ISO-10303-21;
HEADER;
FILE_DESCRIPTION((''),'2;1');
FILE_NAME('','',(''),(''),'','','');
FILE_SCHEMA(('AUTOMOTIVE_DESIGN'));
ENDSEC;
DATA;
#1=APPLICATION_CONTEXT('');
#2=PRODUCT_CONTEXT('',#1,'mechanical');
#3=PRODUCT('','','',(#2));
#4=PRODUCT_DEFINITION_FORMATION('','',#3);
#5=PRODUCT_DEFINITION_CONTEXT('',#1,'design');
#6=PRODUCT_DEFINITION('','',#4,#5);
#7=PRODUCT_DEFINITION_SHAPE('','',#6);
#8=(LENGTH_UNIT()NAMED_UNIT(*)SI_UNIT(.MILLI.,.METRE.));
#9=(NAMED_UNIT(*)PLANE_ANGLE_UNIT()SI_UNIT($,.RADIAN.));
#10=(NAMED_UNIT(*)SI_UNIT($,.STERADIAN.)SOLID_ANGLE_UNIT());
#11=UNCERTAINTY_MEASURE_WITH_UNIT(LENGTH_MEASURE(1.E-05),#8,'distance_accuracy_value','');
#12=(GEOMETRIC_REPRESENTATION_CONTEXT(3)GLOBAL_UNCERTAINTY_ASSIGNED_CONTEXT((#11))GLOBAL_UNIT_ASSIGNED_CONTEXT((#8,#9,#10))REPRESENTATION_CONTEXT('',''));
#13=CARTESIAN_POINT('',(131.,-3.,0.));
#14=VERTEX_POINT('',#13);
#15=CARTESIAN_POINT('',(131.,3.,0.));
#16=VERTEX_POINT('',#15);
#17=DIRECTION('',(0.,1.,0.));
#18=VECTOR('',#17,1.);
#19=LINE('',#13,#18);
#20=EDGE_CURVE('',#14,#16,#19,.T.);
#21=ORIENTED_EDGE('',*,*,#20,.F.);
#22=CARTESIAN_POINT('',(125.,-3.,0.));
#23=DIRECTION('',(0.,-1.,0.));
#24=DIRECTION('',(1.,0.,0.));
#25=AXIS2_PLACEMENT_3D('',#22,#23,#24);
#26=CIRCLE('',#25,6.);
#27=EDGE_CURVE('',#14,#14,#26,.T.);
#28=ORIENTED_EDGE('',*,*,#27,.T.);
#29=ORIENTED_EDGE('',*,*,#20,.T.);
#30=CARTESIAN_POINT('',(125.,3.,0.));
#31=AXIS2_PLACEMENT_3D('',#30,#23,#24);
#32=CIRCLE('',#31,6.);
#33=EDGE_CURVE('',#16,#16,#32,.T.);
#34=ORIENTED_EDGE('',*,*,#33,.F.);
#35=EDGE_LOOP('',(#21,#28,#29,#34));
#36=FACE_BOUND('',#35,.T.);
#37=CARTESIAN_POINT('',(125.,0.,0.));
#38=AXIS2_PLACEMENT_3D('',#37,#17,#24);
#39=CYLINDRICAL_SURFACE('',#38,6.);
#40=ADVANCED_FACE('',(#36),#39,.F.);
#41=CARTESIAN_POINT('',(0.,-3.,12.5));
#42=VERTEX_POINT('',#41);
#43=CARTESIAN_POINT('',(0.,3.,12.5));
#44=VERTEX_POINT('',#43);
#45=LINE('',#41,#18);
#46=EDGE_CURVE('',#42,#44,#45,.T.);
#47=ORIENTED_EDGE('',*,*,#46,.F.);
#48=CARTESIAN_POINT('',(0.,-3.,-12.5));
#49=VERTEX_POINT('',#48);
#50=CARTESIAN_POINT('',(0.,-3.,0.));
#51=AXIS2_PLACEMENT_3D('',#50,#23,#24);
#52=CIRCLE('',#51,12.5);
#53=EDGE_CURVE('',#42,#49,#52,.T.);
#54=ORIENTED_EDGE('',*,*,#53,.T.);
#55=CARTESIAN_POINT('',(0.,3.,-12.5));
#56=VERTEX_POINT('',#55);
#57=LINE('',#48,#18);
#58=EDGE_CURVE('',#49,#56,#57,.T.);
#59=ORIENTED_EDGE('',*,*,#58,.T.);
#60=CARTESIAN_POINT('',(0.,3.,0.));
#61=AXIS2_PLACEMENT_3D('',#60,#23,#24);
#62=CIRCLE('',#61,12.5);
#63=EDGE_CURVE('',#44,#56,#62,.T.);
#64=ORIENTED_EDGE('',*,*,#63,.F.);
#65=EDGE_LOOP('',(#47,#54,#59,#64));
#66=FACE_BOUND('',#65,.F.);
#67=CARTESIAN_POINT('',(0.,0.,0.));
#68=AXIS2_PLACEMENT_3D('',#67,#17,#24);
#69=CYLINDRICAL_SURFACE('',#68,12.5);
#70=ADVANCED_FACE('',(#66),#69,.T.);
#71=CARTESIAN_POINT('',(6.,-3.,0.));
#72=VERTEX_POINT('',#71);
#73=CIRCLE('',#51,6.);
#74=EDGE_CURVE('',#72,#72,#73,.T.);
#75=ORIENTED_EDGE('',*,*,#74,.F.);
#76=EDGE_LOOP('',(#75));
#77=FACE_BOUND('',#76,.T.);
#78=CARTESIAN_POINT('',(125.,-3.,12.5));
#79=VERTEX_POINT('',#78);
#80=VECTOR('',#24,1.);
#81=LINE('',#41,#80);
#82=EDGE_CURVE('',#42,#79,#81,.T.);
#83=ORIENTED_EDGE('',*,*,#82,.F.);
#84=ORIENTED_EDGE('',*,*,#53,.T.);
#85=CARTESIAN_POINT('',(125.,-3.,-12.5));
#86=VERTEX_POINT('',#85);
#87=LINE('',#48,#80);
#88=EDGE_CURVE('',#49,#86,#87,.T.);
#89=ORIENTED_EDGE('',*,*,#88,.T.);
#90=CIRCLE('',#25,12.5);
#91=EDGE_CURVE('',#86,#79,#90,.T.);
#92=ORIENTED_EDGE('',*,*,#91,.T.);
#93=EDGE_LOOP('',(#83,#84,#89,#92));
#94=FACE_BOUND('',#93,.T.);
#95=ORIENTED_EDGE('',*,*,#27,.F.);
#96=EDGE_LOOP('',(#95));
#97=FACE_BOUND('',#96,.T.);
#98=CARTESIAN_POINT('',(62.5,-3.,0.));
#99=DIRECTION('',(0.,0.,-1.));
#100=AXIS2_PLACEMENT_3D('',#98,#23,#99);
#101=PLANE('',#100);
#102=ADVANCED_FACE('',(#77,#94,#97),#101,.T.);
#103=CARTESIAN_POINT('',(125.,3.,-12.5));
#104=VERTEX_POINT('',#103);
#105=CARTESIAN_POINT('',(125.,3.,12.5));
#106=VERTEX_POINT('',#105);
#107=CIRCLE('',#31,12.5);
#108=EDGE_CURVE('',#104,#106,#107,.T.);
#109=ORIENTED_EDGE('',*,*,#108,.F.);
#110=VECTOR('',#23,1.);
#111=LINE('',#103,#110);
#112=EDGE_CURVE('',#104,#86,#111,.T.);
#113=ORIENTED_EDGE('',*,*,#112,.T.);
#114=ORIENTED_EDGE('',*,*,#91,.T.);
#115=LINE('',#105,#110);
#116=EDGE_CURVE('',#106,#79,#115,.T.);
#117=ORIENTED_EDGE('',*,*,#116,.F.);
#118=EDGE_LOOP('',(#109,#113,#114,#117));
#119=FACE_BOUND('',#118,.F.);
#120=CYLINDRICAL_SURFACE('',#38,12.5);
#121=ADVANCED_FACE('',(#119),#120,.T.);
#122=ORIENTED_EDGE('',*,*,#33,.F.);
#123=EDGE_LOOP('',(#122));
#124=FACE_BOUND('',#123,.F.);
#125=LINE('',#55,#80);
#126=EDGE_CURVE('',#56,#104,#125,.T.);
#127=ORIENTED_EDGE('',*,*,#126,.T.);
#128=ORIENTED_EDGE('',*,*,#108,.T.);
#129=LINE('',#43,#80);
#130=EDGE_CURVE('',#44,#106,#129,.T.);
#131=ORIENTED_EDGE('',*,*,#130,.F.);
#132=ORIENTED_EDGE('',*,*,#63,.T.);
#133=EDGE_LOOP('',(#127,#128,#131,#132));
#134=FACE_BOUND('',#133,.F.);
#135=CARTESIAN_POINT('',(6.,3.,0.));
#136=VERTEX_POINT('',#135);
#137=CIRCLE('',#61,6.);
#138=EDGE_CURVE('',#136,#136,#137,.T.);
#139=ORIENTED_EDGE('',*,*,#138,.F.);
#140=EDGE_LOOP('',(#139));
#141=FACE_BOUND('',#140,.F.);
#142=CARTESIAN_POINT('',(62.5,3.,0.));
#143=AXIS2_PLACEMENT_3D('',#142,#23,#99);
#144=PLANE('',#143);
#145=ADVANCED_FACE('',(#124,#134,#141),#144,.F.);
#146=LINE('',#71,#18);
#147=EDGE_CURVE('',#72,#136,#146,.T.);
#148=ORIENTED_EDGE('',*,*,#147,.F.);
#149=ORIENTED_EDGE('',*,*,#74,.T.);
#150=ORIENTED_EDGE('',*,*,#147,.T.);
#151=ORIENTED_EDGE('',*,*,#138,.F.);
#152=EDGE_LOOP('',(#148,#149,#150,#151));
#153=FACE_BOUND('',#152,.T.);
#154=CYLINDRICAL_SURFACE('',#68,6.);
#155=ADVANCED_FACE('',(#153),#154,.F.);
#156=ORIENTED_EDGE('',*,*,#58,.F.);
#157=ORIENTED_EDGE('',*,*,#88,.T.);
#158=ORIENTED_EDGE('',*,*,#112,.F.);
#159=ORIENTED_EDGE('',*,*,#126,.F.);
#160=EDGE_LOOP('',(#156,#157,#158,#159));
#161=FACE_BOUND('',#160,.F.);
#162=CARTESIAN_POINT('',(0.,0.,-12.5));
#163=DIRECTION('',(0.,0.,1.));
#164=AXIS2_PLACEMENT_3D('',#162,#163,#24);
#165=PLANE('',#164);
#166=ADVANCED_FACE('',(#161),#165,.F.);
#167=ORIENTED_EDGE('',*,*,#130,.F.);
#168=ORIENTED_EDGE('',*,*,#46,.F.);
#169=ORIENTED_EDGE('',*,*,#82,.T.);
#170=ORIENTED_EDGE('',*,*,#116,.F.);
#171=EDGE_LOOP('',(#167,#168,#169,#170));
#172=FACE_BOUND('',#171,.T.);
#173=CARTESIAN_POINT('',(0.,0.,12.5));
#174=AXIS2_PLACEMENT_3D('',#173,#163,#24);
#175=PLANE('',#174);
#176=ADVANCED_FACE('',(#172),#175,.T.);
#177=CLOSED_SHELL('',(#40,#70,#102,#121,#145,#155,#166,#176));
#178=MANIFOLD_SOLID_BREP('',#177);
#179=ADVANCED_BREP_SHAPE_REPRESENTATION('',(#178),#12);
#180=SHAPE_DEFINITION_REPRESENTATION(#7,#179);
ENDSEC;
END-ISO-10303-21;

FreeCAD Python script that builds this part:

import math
import FreeCAD as App
import Part
import Sketcher
from FreeCAD import Vector
Q = App.Units.Quantity

doc = App.newDocument("Part")
params = doc.addObject("Spreadsheet::Sheet", "Params")
for row, (alias, value) in enumerate([
    ("sketch1_diameter", "12 mm"),
    ("sketch1_radius", "12.5 mm"),
    ("sketch1_width", "125 mm"),
    ("pad1_length", "6 mm"),
], start=1):
    params.set(f"A{row}", alias)
    params.set(f"B{row}", "=" + value)
    params.setAlias(f"B{row}", alias)

body = doc.addObject("PartDesign::Body", "Body")

# Sketch on XZ plane
sketch1 = doc.addObject("Sketcher::SketchObject", "Sketch")
body.addObject(sketch1)
sketch1.AttachmentSupport = (doc.XZ_Plane, [""])
sketch1.MapMode = "FlatFace"
sketch1.addGeometry([
    Part.ArcOfCircle(Part.Circle(Vector(0, 0, 0), Vector(0, 0, 1), 12), math.radians(90), math.radians(270)),  # 0
    Part.LineSegment(Vector(0, -12, 0), Vector(125, -12, 0)),  # 1
    Part.ArcOfCircle(Part.Circle(Vector(125, 0, 0), Vector(0, 0, 1), 12), math.radians(-90), math.radians(90)),  # 2
    Part.LineSegment(Vector(125, 12, 0), Vector(0, 12, 0)),  # 3
    Part.Circle(Vector(0, 0, 0), Vector(0, 0, 1), 6),  # 4
    Part.Circle(Vector(125, 0, 0), Vector(0, 0, 1), 6),  # 5
], False)
sketch1.addConstraint([
    Sketcher.Constraint("Tangent", 0, 2, 1, 1),
    Sketcher.Constraint("Tangent", 1, 2, 2, 1),
    Sketcher.Constraint("Tangent", 2, 2, 3, 1),
    Sketcher.Constraint("Tangent", 3, 2, 0, 1),
    Sketcher.Constraint("Horizontal", 1),
    Sketcher.Constraint("Horizontal", 3),
    Sketcher.Constraint("Coincident", 0, 3, -1, 1),
    Sketcher.Constraint("Coincident", 4, 3, -1, 1),
    Sketcher.Constraint("Coincident", 5, 3, 2, 3),
    Sketcher.Constraint("Equal", 4, 5),
    Sketcher.Constraint("Diameter", 4, Q("12 mm")),
    Sketcher.Constraint("Radius", 0, Q("12.5 mm")),
    Sketcher.Constraint("DistanceX", 1, 1, 1, 2, Q("125 mm")),
])
sketch1.setExpression("Constraints[10]", "Params.sketch1_diameter")
sketch1.setExpression("Constraints[11]", "Params.sketch1_radius")
sketch1.setExpression("Constraints[12]", "Params.sketch1_width")
pad1 = doc.addObject("PartDesign::Pad", "Pad")
body.addObject(pad1)
pad1.Profile = sketch1
pad1.setExpression("Length", "Params.pad1_length")
pad1.Midplane = True

doc.recompute()
